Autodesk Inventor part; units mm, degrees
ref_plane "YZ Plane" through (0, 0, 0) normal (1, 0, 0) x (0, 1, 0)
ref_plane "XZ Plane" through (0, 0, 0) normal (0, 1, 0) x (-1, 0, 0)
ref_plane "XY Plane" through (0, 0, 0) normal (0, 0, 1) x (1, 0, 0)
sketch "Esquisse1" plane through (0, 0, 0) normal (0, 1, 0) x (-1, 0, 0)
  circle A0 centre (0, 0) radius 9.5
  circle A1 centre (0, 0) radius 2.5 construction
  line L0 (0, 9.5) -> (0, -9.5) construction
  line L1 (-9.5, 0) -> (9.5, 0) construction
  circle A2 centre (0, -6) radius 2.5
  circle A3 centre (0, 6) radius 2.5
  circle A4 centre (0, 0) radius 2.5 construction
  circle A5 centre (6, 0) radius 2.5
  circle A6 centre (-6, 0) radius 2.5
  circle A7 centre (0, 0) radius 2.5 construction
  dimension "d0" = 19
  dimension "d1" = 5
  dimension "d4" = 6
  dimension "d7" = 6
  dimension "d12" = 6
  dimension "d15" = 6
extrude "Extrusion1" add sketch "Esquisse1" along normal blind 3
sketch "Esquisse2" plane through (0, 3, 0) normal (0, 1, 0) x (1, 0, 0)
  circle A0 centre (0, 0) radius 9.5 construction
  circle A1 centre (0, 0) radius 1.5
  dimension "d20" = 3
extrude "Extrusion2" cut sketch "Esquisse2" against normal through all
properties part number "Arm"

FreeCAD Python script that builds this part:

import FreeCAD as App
import Part
import Sketcher

V = App.Vector
Q = App.Units.Quantity

doc = App.newDocument("Part")
body = doc.addObject("PartDesign::Body", "Body")

# Sketch on XZ plane
sketch1 = body.newObject("Sketcher::SketchObject", "Sketch")
sketch1.AttachmentSupport = (doc.getObject("XZ_Plane"), [""])
sketch1.MapMode = "FlatFace"
sketch1.addGeometry(Part.Circle(V(0, 0, 0), V(0, 0, 1), 9.5), False)
sketch1.addGeometry(Part.Circle(V(0, -6, 0), V(0, 0, 1), 2.5), False)
sketch1.addGeometry(Part.Circle(V(6, 0, 0), V(0, 0, 1), 2.5), False)
sketch1.addGeometry(Part.Circle(V(-6, 0, 0), V(0, 0, 1), 2.5), False)
sketch1.addGeometry(Part.Circle(V(0, 6, 0), V(0, 0, 1), 2.5), False)
sketch1.addConstraint(Sketcher.Constraint("Coincident", 0, 3, -1, 1))
sketch1.addConstraint(Sketcher.Constraint("Equal", 1, 2))
sketch1.addConstraint(Sketcher.Constraint("Equal", 2, 3))
sketch1.addConstraint(Sketcher.Constraint("Equal", 3, 4))
sketch1.addConstraint(Sketcher.Constraint("Symmetric", 2, 3, 3, 3, -1, 1))
sketch1.addConstraint(Sketcher.Constraint("Symmetric", 1, 3, 4, 3, -1, 1))
sketch1.addConstraint(Sketcher.Constraint("PointOnObject", 1, 3, -2))
sketch1.addConstraint(Sketcher.Constraint("PointOnObject", 2, 3, -1))
sketch1.addConstraint(Sketcher.Constraint("Diameter", 0, Q("19 mm")))
sketch1.addConstraint(Sketcher.Constraint("Diameter", 1, Q("5 mm")))
sketch1.addConstraint(Sketcher.Constraint("DistanceY", 1, 3, -1, 1, Q("6 mm")))
sketch1.addConstraint(Sketcher.Constraint("DistanceX", -1, 1, 2, 3, Q("6 mm")))
pad1 = body.newObject("PartDesign::Pad", "Pad")
pad1.Profile = sketch1
pad1.Length = 3
pad1.Reversed = True

# Sketch on XZ plane
sketch2 = body.newObject("Sketcher::SketchObject", "Sketch001")
sketch2.AttachmentSupport = (doc.getObject("XZ_Plane"), [""])
sketch2.MapMode = "FlatFace"
sketch2.AttachmentOffset = App.Placement(V(0, 0, -3), App.Rotation())
sketch2.addGeometry(Part.Circle(V(0, 0, 0), V(0, 0, 1), 1.5), False)
sketch2.addConstraint(Sketcher.Constraint("Coincident", 0, 3, -1, 1))
sketch2.addConstraint(Sketcher.Constraint("Diameter", 0, Q("3 mm")))
pocket1 = body.newObject("PartDesign::Pocket", "Pocket")
pocket1.Profile = sketch2
pocket1.Type = "ThroughAll"
pocket1.Reversed = True

doc.recompute()
